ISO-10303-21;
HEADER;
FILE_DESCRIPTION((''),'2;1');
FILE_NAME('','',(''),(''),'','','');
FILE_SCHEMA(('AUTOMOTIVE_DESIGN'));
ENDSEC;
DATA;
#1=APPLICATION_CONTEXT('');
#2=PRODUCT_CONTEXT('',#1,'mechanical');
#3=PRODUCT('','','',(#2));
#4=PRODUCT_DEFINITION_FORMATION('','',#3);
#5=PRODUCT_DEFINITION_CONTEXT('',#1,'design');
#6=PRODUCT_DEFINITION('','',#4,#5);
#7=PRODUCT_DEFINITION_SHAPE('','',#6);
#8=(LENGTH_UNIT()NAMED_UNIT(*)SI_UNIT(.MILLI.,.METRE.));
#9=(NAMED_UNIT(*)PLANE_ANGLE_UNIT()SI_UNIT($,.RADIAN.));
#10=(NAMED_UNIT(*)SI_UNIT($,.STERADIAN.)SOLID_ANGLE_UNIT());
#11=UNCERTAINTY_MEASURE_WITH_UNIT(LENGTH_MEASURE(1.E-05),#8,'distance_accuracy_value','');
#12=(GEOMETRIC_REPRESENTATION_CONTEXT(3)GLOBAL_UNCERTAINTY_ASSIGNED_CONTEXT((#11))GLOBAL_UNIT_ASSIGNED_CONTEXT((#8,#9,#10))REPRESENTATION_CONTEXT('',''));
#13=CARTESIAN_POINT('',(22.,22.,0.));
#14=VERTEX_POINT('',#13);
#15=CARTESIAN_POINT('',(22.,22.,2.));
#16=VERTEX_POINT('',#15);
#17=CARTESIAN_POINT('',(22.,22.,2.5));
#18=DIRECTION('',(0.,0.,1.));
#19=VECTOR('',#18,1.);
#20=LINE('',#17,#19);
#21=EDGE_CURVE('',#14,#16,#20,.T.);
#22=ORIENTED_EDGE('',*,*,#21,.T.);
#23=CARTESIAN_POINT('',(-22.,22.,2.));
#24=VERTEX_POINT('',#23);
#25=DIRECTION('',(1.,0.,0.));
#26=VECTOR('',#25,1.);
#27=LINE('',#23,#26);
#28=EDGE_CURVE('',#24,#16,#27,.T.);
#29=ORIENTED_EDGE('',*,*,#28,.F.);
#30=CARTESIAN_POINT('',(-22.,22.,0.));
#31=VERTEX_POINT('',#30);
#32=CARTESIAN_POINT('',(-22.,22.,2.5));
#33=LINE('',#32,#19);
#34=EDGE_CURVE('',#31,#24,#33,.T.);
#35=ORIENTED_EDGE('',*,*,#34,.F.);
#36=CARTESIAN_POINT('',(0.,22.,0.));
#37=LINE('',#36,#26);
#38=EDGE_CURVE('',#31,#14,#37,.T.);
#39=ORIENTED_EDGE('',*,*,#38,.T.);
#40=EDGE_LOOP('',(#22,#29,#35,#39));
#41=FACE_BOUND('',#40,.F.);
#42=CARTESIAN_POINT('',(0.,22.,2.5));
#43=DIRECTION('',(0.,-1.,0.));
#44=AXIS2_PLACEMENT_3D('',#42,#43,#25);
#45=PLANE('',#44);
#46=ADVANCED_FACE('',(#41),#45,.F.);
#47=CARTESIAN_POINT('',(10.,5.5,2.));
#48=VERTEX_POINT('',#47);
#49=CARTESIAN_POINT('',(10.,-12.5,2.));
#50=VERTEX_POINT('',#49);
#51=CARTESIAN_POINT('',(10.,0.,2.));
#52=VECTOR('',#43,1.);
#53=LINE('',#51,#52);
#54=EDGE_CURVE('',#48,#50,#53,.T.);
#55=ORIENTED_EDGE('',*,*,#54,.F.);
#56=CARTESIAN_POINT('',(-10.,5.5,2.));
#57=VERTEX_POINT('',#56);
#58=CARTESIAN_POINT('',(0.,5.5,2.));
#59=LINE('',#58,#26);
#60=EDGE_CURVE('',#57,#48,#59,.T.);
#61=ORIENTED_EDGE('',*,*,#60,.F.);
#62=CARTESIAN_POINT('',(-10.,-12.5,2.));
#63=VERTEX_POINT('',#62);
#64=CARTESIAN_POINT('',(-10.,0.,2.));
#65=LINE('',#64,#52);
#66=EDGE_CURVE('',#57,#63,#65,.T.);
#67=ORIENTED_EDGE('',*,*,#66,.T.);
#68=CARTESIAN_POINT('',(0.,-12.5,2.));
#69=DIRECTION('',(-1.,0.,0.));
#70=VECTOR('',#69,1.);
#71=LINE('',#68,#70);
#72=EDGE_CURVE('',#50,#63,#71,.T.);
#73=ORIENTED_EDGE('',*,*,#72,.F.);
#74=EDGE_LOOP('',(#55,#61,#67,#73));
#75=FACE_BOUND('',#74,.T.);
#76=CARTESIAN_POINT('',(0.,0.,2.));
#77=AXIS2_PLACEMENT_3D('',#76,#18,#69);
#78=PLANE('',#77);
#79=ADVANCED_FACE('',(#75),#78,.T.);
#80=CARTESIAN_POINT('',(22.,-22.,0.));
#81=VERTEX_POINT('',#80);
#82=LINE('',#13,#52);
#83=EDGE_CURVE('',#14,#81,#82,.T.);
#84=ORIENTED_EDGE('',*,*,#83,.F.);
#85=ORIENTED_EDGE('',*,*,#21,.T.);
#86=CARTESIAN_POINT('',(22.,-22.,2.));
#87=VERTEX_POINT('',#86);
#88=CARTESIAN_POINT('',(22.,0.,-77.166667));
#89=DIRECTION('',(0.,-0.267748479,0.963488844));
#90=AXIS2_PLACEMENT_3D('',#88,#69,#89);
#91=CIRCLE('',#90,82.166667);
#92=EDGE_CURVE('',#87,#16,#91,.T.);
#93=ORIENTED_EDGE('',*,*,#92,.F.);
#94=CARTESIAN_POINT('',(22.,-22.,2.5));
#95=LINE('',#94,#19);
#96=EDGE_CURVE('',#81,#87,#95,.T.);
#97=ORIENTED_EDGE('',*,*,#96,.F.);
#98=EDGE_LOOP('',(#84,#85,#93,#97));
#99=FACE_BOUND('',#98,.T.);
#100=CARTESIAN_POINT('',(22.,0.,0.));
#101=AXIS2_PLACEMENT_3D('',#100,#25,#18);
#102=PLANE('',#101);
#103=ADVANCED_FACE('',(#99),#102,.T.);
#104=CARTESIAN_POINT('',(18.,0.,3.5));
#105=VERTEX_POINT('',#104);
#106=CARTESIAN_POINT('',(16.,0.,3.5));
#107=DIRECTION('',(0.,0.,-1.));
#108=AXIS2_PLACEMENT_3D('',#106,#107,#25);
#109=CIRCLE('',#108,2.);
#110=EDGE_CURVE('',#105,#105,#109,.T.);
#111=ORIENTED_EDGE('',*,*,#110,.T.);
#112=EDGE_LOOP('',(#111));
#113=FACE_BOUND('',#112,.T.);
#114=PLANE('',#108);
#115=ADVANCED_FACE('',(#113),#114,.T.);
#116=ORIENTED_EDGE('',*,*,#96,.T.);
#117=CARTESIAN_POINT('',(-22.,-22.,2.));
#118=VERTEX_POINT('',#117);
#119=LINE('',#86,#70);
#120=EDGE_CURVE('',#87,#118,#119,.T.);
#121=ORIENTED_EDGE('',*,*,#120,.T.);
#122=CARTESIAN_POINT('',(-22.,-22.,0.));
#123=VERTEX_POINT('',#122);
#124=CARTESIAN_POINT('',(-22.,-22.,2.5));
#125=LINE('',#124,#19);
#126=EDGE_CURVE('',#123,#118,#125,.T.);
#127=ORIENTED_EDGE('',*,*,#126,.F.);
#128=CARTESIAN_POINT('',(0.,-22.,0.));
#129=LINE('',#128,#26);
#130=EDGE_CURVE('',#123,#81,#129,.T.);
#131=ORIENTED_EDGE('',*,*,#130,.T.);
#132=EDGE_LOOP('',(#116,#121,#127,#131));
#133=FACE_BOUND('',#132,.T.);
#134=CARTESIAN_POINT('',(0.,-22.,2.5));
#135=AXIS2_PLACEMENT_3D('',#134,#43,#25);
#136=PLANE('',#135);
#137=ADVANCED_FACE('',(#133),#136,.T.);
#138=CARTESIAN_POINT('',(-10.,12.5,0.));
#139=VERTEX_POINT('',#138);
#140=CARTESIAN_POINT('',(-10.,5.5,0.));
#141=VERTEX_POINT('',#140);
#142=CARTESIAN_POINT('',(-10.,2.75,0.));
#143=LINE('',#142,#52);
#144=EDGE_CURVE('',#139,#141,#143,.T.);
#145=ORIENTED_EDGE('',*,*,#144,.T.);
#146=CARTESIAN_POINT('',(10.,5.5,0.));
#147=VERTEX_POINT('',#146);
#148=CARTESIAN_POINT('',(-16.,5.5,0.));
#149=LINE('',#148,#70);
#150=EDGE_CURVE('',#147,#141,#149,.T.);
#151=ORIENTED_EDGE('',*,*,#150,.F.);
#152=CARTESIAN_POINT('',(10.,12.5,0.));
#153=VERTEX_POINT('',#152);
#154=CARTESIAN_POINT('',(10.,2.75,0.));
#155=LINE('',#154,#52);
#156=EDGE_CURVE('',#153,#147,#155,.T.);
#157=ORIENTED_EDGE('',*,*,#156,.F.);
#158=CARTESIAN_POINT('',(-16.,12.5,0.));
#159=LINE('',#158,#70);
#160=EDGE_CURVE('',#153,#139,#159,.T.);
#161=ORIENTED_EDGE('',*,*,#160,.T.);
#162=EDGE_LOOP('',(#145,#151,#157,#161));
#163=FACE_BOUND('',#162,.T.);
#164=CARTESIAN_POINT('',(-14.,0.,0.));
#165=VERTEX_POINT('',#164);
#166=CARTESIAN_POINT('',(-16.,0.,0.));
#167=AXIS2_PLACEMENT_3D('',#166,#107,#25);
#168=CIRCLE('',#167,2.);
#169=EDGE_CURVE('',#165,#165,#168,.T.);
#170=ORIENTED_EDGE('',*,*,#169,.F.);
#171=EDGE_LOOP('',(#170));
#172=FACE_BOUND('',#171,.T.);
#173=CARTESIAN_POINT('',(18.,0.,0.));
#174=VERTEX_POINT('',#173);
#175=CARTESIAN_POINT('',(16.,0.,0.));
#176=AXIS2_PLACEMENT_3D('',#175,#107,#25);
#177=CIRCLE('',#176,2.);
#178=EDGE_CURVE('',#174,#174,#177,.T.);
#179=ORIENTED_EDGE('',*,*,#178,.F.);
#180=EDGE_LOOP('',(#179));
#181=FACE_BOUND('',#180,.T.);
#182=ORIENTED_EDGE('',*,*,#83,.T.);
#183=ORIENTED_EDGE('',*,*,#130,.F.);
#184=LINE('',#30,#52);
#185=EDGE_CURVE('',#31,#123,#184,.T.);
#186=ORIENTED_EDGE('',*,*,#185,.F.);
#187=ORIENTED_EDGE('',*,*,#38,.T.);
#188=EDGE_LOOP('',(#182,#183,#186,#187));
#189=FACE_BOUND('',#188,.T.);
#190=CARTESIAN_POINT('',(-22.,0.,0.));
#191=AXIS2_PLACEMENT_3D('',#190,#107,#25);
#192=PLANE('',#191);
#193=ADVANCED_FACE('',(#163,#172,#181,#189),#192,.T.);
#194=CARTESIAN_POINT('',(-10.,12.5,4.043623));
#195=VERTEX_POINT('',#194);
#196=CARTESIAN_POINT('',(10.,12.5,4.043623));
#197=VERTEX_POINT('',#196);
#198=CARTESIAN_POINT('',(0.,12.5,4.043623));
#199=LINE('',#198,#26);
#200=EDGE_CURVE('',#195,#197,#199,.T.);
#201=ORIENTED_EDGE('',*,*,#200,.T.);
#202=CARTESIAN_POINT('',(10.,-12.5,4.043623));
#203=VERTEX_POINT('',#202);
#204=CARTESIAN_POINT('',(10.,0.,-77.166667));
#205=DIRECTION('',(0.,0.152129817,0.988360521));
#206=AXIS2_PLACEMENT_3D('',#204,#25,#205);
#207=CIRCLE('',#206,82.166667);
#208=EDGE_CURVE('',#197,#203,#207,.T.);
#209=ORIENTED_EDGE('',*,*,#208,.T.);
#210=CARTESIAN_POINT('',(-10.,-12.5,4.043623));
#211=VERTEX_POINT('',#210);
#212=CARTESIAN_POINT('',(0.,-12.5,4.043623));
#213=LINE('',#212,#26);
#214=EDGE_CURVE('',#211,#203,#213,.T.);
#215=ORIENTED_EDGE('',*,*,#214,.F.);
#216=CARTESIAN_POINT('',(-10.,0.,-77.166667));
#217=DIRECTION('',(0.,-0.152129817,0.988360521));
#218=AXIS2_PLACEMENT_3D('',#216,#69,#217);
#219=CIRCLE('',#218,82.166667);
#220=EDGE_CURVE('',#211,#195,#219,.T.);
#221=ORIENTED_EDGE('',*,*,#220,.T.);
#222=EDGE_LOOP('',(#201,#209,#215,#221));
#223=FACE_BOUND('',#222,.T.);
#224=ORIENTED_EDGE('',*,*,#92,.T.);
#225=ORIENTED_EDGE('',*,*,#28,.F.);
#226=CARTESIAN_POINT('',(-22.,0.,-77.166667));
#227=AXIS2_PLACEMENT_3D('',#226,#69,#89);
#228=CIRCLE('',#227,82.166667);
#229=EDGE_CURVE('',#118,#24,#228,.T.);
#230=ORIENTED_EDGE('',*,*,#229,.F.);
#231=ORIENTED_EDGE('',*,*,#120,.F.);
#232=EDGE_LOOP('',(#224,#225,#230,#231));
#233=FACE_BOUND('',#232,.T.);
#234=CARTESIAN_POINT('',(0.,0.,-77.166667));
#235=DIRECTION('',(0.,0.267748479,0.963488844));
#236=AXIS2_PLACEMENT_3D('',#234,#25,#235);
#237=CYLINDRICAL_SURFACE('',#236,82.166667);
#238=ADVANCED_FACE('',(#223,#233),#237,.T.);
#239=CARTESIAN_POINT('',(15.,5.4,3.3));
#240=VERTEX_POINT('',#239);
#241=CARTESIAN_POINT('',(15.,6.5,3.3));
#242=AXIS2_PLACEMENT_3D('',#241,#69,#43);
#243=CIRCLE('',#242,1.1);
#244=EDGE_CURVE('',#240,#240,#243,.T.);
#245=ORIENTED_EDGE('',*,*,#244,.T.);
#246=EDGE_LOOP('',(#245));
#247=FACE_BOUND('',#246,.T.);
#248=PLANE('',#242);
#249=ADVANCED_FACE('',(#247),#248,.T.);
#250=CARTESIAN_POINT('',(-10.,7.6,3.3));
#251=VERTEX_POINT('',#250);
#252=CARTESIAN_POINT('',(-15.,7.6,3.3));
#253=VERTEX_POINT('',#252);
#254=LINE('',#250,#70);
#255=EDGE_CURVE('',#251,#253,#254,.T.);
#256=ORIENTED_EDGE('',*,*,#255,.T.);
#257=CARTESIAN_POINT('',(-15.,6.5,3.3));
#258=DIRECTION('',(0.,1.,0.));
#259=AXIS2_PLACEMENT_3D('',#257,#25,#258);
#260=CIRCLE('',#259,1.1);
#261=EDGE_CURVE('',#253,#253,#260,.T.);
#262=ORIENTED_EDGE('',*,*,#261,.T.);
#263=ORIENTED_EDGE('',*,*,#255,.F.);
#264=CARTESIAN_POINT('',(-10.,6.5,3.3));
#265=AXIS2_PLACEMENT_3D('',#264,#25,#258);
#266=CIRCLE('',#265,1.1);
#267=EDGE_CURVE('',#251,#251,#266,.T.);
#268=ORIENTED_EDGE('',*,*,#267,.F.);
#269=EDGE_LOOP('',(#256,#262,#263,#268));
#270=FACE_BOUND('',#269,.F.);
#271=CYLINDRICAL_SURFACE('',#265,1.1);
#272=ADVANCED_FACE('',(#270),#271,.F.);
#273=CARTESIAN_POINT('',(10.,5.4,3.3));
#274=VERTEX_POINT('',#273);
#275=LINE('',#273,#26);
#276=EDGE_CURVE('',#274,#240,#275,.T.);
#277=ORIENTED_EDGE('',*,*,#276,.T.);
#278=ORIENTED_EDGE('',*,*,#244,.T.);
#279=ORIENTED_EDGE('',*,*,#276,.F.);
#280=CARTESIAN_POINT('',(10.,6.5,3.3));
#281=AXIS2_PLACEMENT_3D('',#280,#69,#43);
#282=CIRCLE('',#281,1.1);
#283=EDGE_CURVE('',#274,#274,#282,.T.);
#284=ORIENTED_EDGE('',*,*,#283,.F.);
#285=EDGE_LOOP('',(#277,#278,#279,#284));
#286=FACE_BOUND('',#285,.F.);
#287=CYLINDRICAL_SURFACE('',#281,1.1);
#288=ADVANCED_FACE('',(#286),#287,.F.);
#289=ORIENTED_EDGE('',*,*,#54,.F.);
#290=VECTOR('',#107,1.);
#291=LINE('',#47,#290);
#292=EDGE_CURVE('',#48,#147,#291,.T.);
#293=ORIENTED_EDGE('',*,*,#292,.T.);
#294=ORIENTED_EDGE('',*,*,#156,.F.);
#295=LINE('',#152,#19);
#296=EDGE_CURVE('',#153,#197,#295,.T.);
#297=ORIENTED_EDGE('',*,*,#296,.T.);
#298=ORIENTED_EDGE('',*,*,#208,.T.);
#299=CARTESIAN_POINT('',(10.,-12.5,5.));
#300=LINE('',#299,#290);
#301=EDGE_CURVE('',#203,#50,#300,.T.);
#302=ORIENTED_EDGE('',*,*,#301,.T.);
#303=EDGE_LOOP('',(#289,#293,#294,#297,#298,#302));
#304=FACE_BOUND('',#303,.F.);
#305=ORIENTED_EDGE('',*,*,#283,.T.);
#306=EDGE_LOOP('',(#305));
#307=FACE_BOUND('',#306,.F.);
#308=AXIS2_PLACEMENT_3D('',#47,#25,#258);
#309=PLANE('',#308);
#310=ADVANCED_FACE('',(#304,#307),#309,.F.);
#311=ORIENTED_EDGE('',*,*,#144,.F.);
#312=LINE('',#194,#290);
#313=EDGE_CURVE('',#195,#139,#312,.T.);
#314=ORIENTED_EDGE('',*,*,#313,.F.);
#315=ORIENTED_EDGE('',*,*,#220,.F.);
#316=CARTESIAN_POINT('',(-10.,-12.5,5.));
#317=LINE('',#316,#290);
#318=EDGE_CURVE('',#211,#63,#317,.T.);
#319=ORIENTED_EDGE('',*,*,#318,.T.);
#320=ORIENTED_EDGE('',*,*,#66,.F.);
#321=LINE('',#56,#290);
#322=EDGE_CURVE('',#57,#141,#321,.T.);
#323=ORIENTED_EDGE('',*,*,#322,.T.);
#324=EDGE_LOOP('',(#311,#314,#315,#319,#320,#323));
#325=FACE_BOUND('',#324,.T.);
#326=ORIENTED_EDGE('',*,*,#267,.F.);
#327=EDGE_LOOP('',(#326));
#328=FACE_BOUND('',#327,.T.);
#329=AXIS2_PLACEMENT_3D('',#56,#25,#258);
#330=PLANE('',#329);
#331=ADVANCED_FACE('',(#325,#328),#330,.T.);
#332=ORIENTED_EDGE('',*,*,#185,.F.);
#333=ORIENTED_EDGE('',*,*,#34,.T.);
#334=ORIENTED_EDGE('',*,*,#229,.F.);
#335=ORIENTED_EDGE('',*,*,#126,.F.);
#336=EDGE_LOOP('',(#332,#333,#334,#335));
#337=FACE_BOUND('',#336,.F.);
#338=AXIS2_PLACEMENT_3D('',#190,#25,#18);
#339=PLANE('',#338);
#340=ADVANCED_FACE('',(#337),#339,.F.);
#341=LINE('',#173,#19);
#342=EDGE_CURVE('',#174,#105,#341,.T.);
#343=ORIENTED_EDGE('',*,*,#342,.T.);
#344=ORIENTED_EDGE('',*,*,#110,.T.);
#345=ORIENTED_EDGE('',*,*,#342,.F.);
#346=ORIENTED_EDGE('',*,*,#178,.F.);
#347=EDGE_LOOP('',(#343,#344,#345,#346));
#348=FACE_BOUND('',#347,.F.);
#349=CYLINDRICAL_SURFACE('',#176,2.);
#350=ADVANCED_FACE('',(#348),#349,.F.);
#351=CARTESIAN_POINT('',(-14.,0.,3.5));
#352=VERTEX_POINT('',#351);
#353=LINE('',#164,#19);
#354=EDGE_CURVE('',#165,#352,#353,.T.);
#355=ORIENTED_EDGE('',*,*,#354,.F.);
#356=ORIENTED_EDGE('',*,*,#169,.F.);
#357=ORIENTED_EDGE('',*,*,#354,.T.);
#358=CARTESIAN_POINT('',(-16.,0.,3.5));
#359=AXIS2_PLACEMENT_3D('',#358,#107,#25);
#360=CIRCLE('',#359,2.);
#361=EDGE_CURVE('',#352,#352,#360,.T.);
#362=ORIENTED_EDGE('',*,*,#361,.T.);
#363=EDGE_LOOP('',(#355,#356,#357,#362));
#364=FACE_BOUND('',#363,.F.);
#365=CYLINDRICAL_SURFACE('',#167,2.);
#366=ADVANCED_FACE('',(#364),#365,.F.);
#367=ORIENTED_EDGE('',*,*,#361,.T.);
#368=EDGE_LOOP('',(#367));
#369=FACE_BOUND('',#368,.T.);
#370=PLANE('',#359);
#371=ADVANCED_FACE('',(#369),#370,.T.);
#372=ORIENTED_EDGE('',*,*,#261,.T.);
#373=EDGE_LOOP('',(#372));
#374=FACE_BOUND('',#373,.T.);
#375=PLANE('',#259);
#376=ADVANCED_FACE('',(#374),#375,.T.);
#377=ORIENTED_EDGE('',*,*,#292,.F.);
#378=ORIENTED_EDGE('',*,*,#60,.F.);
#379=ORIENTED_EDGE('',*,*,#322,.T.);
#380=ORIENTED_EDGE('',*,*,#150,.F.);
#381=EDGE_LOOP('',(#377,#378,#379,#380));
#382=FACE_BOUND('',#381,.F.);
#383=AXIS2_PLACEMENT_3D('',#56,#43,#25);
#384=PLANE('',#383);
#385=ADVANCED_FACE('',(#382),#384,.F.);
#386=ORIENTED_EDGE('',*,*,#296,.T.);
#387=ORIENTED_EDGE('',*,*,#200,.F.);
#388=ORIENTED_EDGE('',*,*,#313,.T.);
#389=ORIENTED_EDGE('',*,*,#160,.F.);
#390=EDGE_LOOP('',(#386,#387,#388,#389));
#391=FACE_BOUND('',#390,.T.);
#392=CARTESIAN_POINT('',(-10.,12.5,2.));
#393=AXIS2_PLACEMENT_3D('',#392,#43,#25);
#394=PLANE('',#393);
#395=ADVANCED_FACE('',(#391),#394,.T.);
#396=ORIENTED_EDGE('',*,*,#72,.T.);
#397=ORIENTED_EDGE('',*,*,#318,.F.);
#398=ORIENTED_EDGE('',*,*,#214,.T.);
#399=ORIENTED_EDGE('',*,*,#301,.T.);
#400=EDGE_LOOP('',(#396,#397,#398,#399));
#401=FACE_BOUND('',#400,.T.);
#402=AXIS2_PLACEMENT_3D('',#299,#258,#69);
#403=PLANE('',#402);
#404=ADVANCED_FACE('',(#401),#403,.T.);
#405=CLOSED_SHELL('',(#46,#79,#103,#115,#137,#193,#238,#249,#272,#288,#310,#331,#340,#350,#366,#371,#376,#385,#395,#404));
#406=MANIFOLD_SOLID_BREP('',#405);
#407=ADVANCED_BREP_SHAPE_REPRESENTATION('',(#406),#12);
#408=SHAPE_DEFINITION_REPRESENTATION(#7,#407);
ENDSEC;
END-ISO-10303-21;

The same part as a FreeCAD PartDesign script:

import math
import FreeCAD as App
import Part
import Sketcher

V = App.Vector
Q = App.Units.Quantity


def add_polygon(sketch, points):
    """Adds a closed chain of lines whose ends are joined by coincident constraints."""
    first, n = sketch.GeometryCount, len(points)
    for a, b in zip(points, points[1:] + points[:1]):
        sketch.addGeometry(Part.LineSegment(App.Vector(*a, 0), App.Vector(*b, 0)), False)
    for i in range(n):
        sketch.addConstraint(Sketcher.Constraint("Coincident", first + i, 2, first + (i + 1) % n, 1))

doc = App.newDocument("Part")
body = doc.addObject("PartDesign::Body", "Body")

sketch1 = body.newObject("Sketcher::SketchObject", "Sketch")
sketch1.AttachmentSupport = (doc.getObject("YZ_Plane"), [""])
sketch1.MapMode = "FlatFace"
sketch1.addGeometry([
    Part.LineSegment(V(-22, 0, 0), V(22, 0, 0)),
    Part.LineSegment(V(22, 0, 0), V(22, 2, 0)),
    Part.ArcOfCircle(Part.Circle(V(0, -77.166667, 0), V(0, 0, 1), 82.166667), math.radians(74.469668), math.radians(105.530332)),
    Part.LineSegment(V(-22, 2, 0), V(-22, 0, 0)),
], False)
sketch1.addConstraint([
    Sketcher.Constraint("Coincident", 0, 2, 1, 1),
    Sketcher.Constraint("Coincident", 1, 2, 2, 1),
    Sketcher.Constraint("Coincident", 2, 2, 3, 1),
    Sketcher.Constraint("Coincident", 3, 2, 0, 1),
    Sketcher.Constraint("Horizontal", 0),
    Sketcher.Constraint("Vertical", 1),
    Sketcher.Constraint("Vertical", 3),
    Sketcher.Constraint("Symmetric", 0, 2, 3, 2, -1, 1),
    Sketcher.Constraint("PointOnObject", 2, 3, -2),
    Sketcher.Constraint("DistanceX", 0, 1, 0, 2, Q("44 mm")),
    Sketcher.Constraint("DistanceY", 1, 1, 1, 2, Q("2 mm")),
    Sketcher.Constraint("Radius", 2, Q("82.166667 mm")),
])
pad1 = body.newObject("PartDesign::Pad", "Pad")
pad1.Profile = sketch1
pad1.Length = 44
pad1.Midplane = True
body2 = doc.addObject("PartDesign::Body", "Body001")

sketch2 = body2.newObject("Sketcher::SketchObject", "Sketch001")
sketch2.AttachmentSupport = (doc.getObject("XZ_Plane001"), [""])
sketch2.MapMode = "FlatFace"
add_polygon(sketch2, [(-22, 5), (-22, 0), (22, 0), (22, 5)])
sketch2.addConstraint([
    Sketcher.Constraint("Vertical", 0),
    Sketcher.Constraint("Horizontal", 1),
    Sketcher.Constraint("Vertical", 2),
    Sketcher.Constraint("Horizontal", 3),
    Sketcher.Constraint("Symmetric", 0, 2, 1, 2, -1, 1),
    Sketcher.Constraint("DistanceX", 1, 1, 1, 2, Q("44 mm")),
    Sketcher.Constraint("DistanceY", 0, 2, 0, 1, Q("5 mm")),
])
pad2 = body2.newObject("PartDesign::Pad", "Pad001")
pad2.Profile = sketch2
pad2.Length = 44
pad2.Midplane = True

sketch3 = body2.newObject("Sketcher::SketchObject", "Sketch002")
sketch3.AttachmentSupport = (doc.getObject("XY_Plane001"), [""])
sketch3.MapMode = "FlatFace"
sketch3.AttachmentOffset = App.Placement(V(0, 0, 5), App.Rotation())
add_polygon(sketch3, [(10, -12.5), (10, 12.5), (-10, 12.5), (-10, -12.5)])
sketch3.addConstraint([
    Sketcher.Constraint("Vertical", 0),
    Sketcher.Constraint("Horizontal", 1),
    Sketcher.Constraint("Vertical", 2),
    Sketcher.Constraint("Horizontal", 3),
    Sketcher.Constraint("Symmetric", 0, 2, 2, 2, -1, 1),
    Sketcher.Constraint("DistanceX", 1, 2, 1, 1, Q("20 mm")),
    Sketcher.Constraint("DistanceY", 0, 1, 0, 2, Q("25 mm")),
])
pocket1 = body2.newObject("PartDesign::Pocket", "Pocket")
pocket1.Profile = sketch3
pocket1.Length = 3
doc.recompute()

boolean = body2.newObject("PartDesign::Boolean", "Boolean")
boolean.Type = "Common"
boolean.addObjects([body])

sketch4 = body2.newObject("Sketcher::SketchObject", "Sketch003")
sketch4.AttachmentSupport = (doc.getObject("YZ_Plane001"), [""])
sketch4.MapMode = "FlatFace"
sketch4.AttachmentOffset = App.Placement(V(0, 0, -10), App.Rotation())
sketch4.addGeometry(Part.Circle(V(6.5, 3.3, 0), V(0, 0, 1), 1.1), False)
sketch4.addConstraint([
    Sketcher.Constraint("Diameter", 0, Q("2.2 mm")),
    Sketcher.Constraint("DistanceX", -1, 1, 0, 3, Q("6.5 mm")),
    Sketcher.Constraint("DistanceY", -1, 1, 0, 3, Q("3.3 mm")),
])
pocket2 = body2.newObject("PartDesign::Pocket", "Pocket001")
pocket2.Profile = sketch4
pocket2.Length = 5

sketch5 = body2.newObject("Sketcher::SketchObject", "Sketch004")
sketch5.AttachmentSupport = (doc.getObject("YZ_Plane001"), [""])
sketch5.MapMode = "FlatFace"
sketch5.AttachmentOffset = App.Placement(V(0, 0, 10), App.Rotation())
sketch5.addGeometry(Part.Circle(V(6.5, 3.3, 0), V(0, 0, 1), 1.1), False)
sketch5.addConstraint([
    Sketcher.Constraint("Diameter", 0, Q("2.2 mm")),
    Sketcher.Constraint("DistanceX", -1, 1, 0, 3, Q("6.5 mm")),
    Sketcher.Constraint("DistanceY", -1, 1, 0, 3, Q("3.3 mm")),
])
pocket3 = body2.newObject("PartDesign::Pocket", "Pocket002")
pocket3.Profile = sketch5
pocket3.Length = 5
pocket3.Reversed = True

sketch6 = body2.newObject("Sketcher::SketchObject", "Sketch005")
sketch6.AttachmentSupport = (doc.getObject("XY_Plane001"), [""])
sketch6.MapMode = "FlatFace"
sketch6.AttachmentOffset = App.Placement(V(0, 0, 2), App.Rotation())
add_polygon(sketch6, [(-10, 12.5), (-10, 5.5), (10, 5.5), (10, 12.5)])
sketch6.addConstraint([
    Sketcher.Constraint("Vertical", 0),
    Sketcher.Constraint("Horizontal", 1),
    Sketcher.Constraint("Vertical", 2),
    Sketcher.Constraint("Horizontal", 3),
    Sketcher.Constraint("DistanceX", 1, 1, 1, 2, Q("20 mm")),
    Sketcher.Constraint("DistanceY", 0, 2, 0, 1, Q("7 mm")),
    Sketcher.Constraint("DistanceX", 0, 2, -1, 1, Q("10 mm")),
    Sketcher.Constraint("DistanceY", -1, 1, 0, 2, Q("5.5 mm")),
])
pocket4 = body2.newObject("PartDesign::Pocket", "Pocket003")
pocket4.Profile = sketch6
pocket4.Type = "ThroughAll"

sketch7 = body2.newObject("Sketcher::SketchObject", "Sketch006")
sketch7.AttachmentSupport = (doc.getObject("XY_Plane001"), [""])
sketch7.MapMode = "FlatFace"
sketch7.addGeometry([
    Part.Circle(V(-16, 0, 0), V(0, 0, 1), 2),
    Part.Circle(V(16, 0, 0), V(0, 0, 1), 2),
], False)
sketch7.addConstraint([
    Sketcher.Constraint("Equal", 0, 1),
    Sketcher.Constraint("Symmetric", 0, 3, 1, 3, -1, 1),
    Sketcher.Constraint("PointOnObject", 0, 3, -1),
    Sketcher.Constraint("Diameter", 0, Q("4 mm")),
    Sketcher.Constraint("DistanceX", 0, 3, -1, 1, Q("16 mm")),
])
pocket5 = body2.newObject("PartDesign::Pocket", "Pocket004")
pocket5.Profile = sketch7
pocket5.Length = 3.5
pocket5.Reversed = True

doc.recompute()
